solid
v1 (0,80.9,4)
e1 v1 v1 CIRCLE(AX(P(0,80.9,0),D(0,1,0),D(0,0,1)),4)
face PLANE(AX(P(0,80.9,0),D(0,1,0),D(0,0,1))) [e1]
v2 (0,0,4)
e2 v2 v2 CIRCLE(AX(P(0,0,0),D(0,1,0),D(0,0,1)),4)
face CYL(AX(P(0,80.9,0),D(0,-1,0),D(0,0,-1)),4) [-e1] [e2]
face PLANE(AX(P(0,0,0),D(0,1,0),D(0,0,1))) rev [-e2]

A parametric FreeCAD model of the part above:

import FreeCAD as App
import Part
import Sketcher
Q = App.Units.Quantity

doc = App.newDocument("Part")
params = doc.addObject("Spreadsheet::Sheet", "Params")
for row, (alias, value) in enumerate([
    ("sketch1_diameter", "8 mm"),
    ("pad1_length", "80.9 mm"),
], start=1):
    params.set(f"A{row}", alias)
    params.set(f"B{row}", "=" + value)
    params.setAlias(f"B{row}", alias)

body = doc.addObject("PartDesign::Body", "Body")

sketch1 = doc.addObject("Sketcher::SketchObject", "Sketch")
body.addObject(sketch1)
sketch1.AttachmentSupport = (doc.XZ_Plane, [""])
sketch1.MapMode = "FlatFace"
sketch1.addGeometry(Part.Circle(App.Vector(0, 0, 0), App.Vector(0, 0, 1), 4), False)
sketch1.addConstraint([
    Sketcher.Constraint("Coincident", 0, 3, -1, 1),
    Sketcher.Constraint("Diameter", 0, Q("8 mm")),
])
sketch1.setExpression("Constraints[1]", "Params.sketch1_diameter")
pad1 = doc.addObject("PartDesign::Pad", "Pad")
body.addObject(pad1)
pad1.Profile = sketch1
pad1.setExpression("Length", "Params.pad1_length")
pad1.Reversed = True

doc.recompute()
